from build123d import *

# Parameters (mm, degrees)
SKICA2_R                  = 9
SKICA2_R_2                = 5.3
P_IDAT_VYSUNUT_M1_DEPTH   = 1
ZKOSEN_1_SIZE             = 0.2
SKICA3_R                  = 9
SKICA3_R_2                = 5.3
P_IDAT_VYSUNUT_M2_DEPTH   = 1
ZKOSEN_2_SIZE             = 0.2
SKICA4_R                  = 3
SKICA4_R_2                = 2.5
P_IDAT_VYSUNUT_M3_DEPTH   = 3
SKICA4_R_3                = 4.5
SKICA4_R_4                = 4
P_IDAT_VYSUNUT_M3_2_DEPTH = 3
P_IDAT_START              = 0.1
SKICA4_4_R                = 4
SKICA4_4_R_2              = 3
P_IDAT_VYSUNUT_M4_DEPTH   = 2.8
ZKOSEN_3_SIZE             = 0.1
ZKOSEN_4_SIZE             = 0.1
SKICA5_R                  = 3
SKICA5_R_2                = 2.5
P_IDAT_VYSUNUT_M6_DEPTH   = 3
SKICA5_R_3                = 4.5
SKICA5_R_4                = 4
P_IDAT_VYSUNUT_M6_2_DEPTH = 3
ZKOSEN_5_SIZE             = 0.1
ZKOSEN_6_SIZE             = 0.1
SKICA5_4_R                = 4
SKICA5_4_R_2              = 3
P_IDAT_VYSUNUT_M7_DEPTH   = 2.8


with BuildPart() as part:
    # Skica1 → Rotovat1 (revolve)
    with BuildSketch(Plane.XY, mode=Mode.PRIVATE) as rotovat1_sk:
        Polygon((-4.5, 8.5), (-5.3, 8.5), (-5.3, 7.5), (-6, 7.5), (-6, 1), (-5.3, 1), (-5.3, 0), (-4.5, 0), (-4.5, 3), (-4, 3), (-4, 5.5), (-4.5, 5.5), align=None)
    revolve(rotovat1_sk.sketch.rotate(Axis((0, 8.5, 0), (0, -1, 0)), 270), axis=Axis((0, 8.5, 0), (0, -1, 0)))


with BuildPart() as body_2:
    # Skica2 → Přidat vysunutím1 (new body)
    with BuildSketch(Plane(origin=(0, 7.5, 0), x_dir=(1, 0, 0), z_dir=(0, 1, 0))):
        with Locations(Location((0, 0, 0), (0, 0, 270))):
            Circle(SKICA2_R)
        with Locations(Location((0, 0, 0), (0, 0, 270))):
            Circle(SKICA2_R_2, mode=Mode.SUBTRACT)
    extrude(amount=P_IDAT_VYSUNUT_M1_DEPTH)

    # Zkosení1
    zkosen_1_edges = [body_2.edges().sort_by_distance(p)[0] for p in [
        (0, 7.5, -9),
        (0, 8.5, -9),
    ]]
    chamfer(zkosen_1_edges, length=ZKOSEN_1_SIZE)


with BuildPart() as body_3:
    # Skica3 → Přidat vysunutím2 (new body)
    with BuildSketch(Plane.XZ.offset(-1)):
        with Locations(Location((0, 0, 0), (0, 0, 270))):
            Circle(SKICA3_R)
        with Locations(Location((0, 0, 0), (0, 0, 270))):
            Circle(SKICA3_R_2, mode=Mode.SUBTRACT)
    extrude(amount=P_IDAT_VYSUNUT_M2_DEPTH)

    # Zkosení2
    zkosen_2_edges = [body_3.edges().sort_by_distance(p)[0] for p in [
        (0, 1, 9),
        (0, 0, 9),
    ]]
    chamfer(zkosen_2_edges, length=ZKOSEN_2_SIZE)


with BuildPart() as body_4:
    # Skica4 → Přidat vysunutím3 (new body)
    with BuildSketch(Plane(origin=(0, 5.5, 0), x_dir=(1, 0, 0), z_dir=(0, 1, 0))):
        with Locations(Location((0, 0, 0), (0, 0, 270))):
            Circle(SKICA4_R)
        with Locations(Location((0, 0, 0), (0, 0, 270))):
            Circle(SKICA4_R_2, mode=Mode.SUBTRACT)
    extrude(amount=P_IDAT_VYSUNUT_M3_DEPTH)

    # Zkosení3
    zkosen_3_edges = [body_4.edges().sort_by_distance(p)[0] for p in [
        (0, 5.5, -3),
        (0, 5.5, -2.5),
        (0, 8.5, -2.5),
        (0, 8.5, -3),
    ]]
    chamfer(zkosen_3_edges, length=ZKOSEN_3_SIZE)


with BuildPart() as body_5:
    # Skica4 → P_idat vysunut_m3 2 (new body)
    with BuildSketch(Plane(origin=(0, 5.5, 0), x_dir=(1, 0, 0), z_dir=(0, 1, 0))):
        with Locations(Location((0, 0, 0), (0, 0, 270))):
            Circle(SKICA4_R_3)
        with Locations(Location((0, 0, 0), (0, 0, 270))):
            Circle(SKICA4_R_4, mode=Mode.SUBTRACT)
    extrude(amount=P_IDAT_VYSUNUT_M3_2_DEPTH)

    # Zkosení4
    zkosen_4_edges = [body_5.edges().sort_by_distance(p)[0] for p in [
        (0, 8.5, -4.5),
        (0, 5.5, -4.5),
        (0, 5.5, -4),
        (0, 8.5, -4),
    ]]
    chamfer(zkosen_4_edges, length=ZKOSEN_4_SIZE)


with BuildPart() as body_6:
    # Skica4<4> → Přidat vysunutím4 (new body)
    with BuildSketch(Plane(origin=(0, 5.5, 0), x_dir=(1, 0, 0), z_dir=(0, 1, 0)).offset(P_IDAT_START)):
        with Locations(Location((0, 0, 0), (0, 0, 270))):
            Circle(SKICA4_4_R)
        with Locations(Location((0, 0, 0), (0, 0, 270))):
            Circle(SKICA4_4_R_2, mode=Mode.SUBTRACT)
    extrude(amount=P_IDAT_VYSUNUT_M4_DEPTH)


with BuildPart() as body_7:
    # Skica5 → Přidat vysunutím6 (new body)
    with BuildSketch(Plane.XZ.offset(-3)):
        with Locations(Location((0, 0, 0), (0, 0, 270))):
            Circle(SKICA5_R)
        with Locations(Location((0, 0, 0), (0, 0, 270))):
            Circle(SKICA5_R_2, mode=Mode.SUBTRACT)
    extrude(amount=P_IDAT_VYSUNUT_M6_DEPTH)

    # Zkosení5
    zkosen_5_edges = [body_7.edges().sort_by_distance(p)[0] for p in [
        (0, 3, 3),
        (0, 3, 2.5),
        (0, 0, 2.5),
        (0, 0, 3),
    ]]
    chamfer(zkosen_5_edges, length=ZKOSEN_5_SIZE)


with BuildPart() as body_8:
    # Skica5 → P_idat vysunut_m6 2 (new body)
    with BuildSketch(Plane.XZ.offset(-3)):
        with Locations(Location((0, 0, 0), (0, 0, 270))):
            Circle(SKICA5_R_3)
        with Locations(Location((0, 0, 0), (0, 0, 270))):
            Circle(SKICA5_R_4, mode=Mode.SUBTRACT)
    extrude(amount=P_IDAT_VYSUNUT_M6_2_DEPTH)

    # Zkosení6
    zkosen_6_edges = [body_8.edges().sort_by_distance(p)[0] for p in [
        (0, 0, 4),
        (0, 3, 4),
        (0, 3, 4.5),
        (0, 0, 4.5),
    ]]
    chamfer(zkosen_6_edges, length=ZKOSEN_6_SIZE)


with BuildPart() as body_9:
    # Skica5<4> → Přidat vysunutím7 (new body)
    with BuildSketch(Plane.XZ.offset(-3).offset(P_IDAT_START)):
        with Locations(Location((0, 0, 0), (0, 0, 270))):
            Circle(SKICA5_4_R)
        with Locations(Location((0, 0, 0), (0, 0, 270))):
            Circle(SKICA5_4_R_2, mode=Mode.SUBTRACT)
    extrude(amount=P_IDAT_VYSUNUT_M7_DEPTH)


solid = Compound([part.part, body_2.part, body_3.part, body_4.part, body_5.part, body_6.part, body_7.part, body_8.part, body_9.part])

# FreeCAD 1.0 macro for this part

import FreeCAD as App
import Part
import Sketcher
Q = App.Units.Quantity


def edges_at(feature, points):
    """Names of the edges that pass closest to the given points."""
    edges = feature.Shape.Edges
    near = lambda p: min(range(len(edges)), key=lambda i: edges[i].distToShape(Part.Vertex(*p))[0])
    return sorted({f"Edge{near(p) + 1}" for p in points})

doc = App.newDocument("Part")
body = doc.addObject("PartDesign::Body", "Body")

sketch1 = doc.addObject("Sketcher::SketchObject", "Sketch")
body.addObject(sketch1)
sketch1.AttachmentSupport = (doc.XY_Plane, [""])
sketch1.MapMode = "FlatFace"
sketch1.addGeometry([
    Part.LineSegment(App.Vector(-4.5, 8.5, 0), App.Vector(-5.3, 8.5, 0)),
    Part.LineSegment(App.Vector(-5.3, 8.5, 0), App.Vector(-5.3, 7.5, 0)),
    Part.LineSegment(App.Vector(-5.3, 7.5, 0), App.Vector(-6, 7.5, 0)),
    Part.LineSegment(App.Vector(-6, 7.5, 0), App.Vector(-6, 1, 0)),
    Part.LineSegment(App.Vector(-6, 1, 0), App.Vector(-5.3, 1, 0)),
    Part.LineSegment(App.Vector(-5.3, 1, 0), App.Vector(-5.3, 0, 0)),
    Part.LineSegment(App.Vector(-5.3, 0, 0), App.Vector(-4.5, 0, 0)),
    Part.LineSegment(App.Vector(-4.5, 0, 0), App.Vector(-4.5, 3, 0)),
    Part.LineSegment(App.Vector(-4.5, 3, 0), App.Vector(-4, 3, 0)),
    Part.LineSegment(App.Vector(-4, 3, 0), App.Vector(-4, 5.5, 0)),
    Part.LineSegment(App.Vector(-4, 5.5, 0), App.Vector(-4.5, 5.5, 0)),
    Part.LineSegment(App.Vector(-4.5, 5.5, 0), App.Vector(-4.5, 8.5, 0)),
], False)
sketch1.addConstraint([
    Sketcher.Constraint("Coincident", 0, 2, 1, 1),
    Sketcher.Constraint("Coincident", 1, 2, 2, 1),
    Sketcher.Constraint("Coincident", 2, 2, 3, 1),
    Sketcher.Constraint("Coincident", 3, 2, 4, 1),
    Sketcher.Constraint("Coincident", 4, 2, 5, 1),
    Sketcher.Constraint("Coincident", 5, 2, 6, 1),
    Sketcher.Constraint("Coincident", 6, 2, 7, 1),
    Sketcher.Constraint("Coincident", 7, 2, 8, 1),
    Sketcher.Constraint("Coincident", 8, 2, 9, 1),
    Sketcher.Constraint("Coincident", 9, 2, 10, 1),
    Sketcher.Constraint("Coincident", 10, 2, 11, 1),
    Sketcher.Constraint("Coincident", 11, 2, 0, 1),
    Sketcher.Constraint("Horizontal", 0),
    Sketcher.Constraint("Vertical", 1),
    Sketcher.Constraint("Horizontal", 2),
    Sketcher.Constraint("Vertical", 3),
    Sketcher.Constraint("Horizontal", 4),
    Sketcher.Constraint("Vertical", 5),
    Sketcher.Constraint("Horizontal", 6),
    Sketcher.Constraint("Vertical", 7),
    Sketcher.Constraint("Horizontal", 8),
    Sketcher.Constraint("Vertical", 9),
    Sketcher.Constraint("Horizontal", 10),
    Sketcher.Constraint("Vertical", 11),
    Sketcher.Constraint("PointOnObject", 5, 2, -1),
    Sketcher.Constraint("Vertical", 1, 2, 4, 2),
    Sketcher.Constraint("Vertical", 7, 2, 10, 2),
    Sketcher.Constraint("Equal", 1, 5),
    Sketcher.Constraint("Equal", 7, 11),
    Sketcher.Constraint("DistanceY", 1, 2, 1, 1, Q("1 mm")),
    Sketcher.Constraint("DistanceY", 7, 1, 7, 2, Q("3 mm")),
    Sketcher.Constraint("DistanceX", 0, 2, 0, 1, Q("0.8 mm")),
    Sketcher.Constraint("DistanceX", 2, 2, 2, 1, Q("0.7 mm")),
    Sketcher.Constraint("DistanceX", 8, 1, 8, 2, Q("0.5 mm")),
    Sketcher.Constraint("DistanceY", 3, 2, 3, 1, Q("6.5 mm")),
    Sketcher.Constraint("DistanceX", 2, 2, -1, 1, Q("6 mm")),
])
revolution = doc.addObject("PartDesign::Revolution", "Revolution")
body.addObject(revolution)
revolution.Profile = sketch1
revolution.ReferenceAxis = (sketch1, ["V_Axis"])
revolution.Angle = 360
body2 = doc.addObject("PartDesign::Body", "Body001")

sketch2 = doc.addObject("Sketcher::SketchObject", "Sketch001")
body2.addObject(sketch2)
sketch2.AttachmentSupport = (doc.getObject("XZ_Plane001"), [""])
sketch2.MapMode = "FlatFace"
sketch2.AttachmentOffset = App.Placement(App.Vector(0, 0, -7.5), App.Rotation())
sketch2.addGeometry([
    Part.Circle(App.Vector(0, 0, 0), App.Vector(0, 0, 1), 9),
    Part.Circle(App.Vector(0, 0, 0), App.Vector(0, 0, 1), 5),
], False)
sketch2.addConstraint([
    Sketcher.Constraint("Coincident", 0, 3, -1, 1),
    Sketcher.Constraint("Coincident", 1, 3, -1, 1),
    Sketcher.Constraint("Diameter", 0, Q("18 mm")),
    Sketcher.Constraint("Diameter", 1, Q("10.6 mm")),
])
pad1 = doc.addObject("PartDesign::Pad", "Pad")
body2.addObject(pad1)
pad1.Profile = sketch2
pad1.Length = 1
pad1.Reversed = True
doc.recompute()

chamfer = doc.addObject("PartDesign::Chamfer", "Chamfer")
body2.addObject(chamfer)
chamfer.Base = (pad1, edges_at(pad1, [(0, 7.5, -9), (0, 8.5, -9)]))
chamfer.Size = 0.2
body3 = doc.addObject("PartDesign::Body", "Body002")

sketch3 = doc.addObject("Sketcher::SketchObject", "Sketch002")
body3.addObject(sketch3)
sketch3.AttachmentSupport = (doc.getObject("XZ_Plane002"), [""])
sketch3.MapMode = "FlatFace"
sketch3.AttachmentOffset = App.Placement(App.Vector(0, 0, -1), App.Rotation())
sketch3.addGeometry([
    Part.Circle(App.Vector(0, 0, 0), App.Vector(0, 0, 1), 9),
    Part.Circle(App.Vector(0, 0, 0), App.Vector(0, 0, 1), 5),
], False)
sketch3.addConstraint([
    Sketcher.Constraint("Coincident", 0, 3, -1, 1),
    Sketcher.Constraint("Coincident", 1, 3, -1, 1),
    Sketcher.Constraint("Diameter", 0, Q("18 mm")),
    Sketcher.Constraint("Diameter", 1, Q("10.6 mm")),
])
pad2 = doc.addObject("PartDesign::Pad", "Pad001")
body3.addObject(pad2)
pad2.Profile = sketch3
pad2.Length = 1
doc.recompute()

chamfer2 = doc.addObject("PartDesign::Chamfer", "Chamfer001")
body3.addObject(chamfer2)
chamfer2.Base = (pad2, edges_at(pad2, [(0, 1, 9), (0, 0, 9)]))
chamfer2.Size = 0.2
body4 = doc.addObject("PartDesign::Body", "Body003")

sketch4 = doc.addObject("Sketcher::SketchObject", "Sketch003")
body4.addObject(sketch4)
sketch4.AttachmentSupport = (doc.getObject("XZ_Plane003"), [""])
sketch4.MapMode = "FlatFace"
sketch4.AttachmentOffset = App.Placement(App.Vector(0, 0, -5.5), App.Rotation())
sketch4.addGeometry([
    Part.Circle(App.Vector(0, 0, 0), App.Vector(0, 0, 1), 3),
    Part.Circle(App.Vector(0, 0, 0), App.Vector(0, 0, 1), 2.5),
], False)
sketch4.addConstraint([
    Sketcher.Constraint("Coincident", 0, 3, -1, 1),
    Sketcher.Constraint("Coincident", 1, 3, -1, 1),
    Sketcher.Constraint("Diameter", 0, Q("6 mm")),
    Sketcher.Constraint("Diameter", 1, Q("5 mm")),
])
pad3 = doc.addObject("PartDesign::Pad", "Pad002")
body4.addObject(pad3)
pad3.Profile = sketch4
pad3.Length = 3
pad3.Reversed = True
doc.recompute()

chamfer3 = doc.addObject("PartDesign::Chamfer", "Chamfer002")
body4.addObject(chamfer3)
chamfer3.Base = (pad3, edges_at(pad3, [
    (0, 5.5, -3),
    (0, 5.5, -2.5),
    (0, 8.5, -2.5),
    (0, 8.5, -3),
]))
chamfer3.Size = 0.1
body5 = doc.addObject("PartDesign::Body", "Body004")

sketch5 = doc.addObject("Sketcher::SketchObject", "Sketch004")
body5.addObject(sketch5)
sketch5.AttachmentSupport = (doc.getObject("XZ_Plane004"), [""])
sketch5.MapMode = "FlatFace"
sketch5.AttachmentOffset = App.Placement(App.Vector(0, 0, -5.5), App.Rotation())
sketch5.addGeometry([
    Part.Circle(App.Vector(0, 0, 0), App.Vector(0, 0, 1), 4.5),
    Part.Circle(App.Vector(0, 0, 0), App.Vector(0, 0, 1), 4),
], False)
sketch5.addConstraint([
    Sketcher.Constraint("Coincident", 0, 3, -1, 1),
    Sketcher.Constraint("Coincident", 1, 3, -1, 1),
    Sketcher.Constraint("Diameter", 0, Q("9 mm")),
    Sketcher.Constraint("Diameter", 1, Q("8 mm")),
])
pad4 = doc.addObject("PartDesign::Pad", "Pad003")
body5.addObject(pad4)
pad4.Profile = sketch5
pad4.Length = 3
pad4.Reversed = True
doc.recompute()

chamfer4 = doc.addObject("PartDesign::Chamfer", "Chamfer003")
body5.addObject(chamfer4)
chamfer4.Base = (pad4, edges_at(pad4, [
    (0, 8.5, -4.5),
    (0, 5.5, -4.5),
    (0, 5.5, -4),
    (0, 8.5, -4),
]))
chamfer4.Size = 0.1
body6 = doc.addObject("PartDesign::Body", "Body005")

sketch6 = doc.addObject("Sketcher::SketchObject", "Sketch005")
body6.addObject(sketch6)
sketch6.AttachmentSupport = (doc.getObject("XZ_Plane005"), [""])
sketch6.MapMode = "FlatFace"
sketch6.AttachmentOffset = App.Placement(App.Vector(0, 0, -5.6), App.Rotation())
sketch6.addGeometry([
    Part.Circle(App.Vector(0, 0, 0), App.Vector(0, 0, 1), 4),
    Part.Circle(App.Vector(0, 0, 0), App.Vector(0, 0, 1), 3),
], False)
sketch6.addConstraint([
    Sketcher.Constraint("Coincident", 0, 3, -1, 1),
    Sketcher.Constraint("Coincident", 1, 3, -1, 1),
    Sketcher.Constraint("Diameter", 0, Q("8 mm")),
    Sketcher.Constraint("Diameter", 1, Q("6 mm")),
])
pad5 = doc.addObject("PartDesign::Pad", "Pad004")
body6.addObject(pad5)
pad5.Profile = sketch6
pad5.Length = 2.8
pad5.Reversed = True
body7 = doc.addObject("PartDesign::Body", "Body006")

sketch7 = doc.addObject("Sketcher::SketchObject", "Sketch006")
body7.addObject(sketch7)
sketch7.AttachmentSupport = (doc.getObject("XZ_Plane006"), [""])
sketch7.MapMode = "FlatFace"
sketch7.AttachmentOffset = App.Placement(App.Vector(0, 0, -3), App.Rotation())
sketch7.addGeometry([
    Part.Circle(App.Vector(0, 0, 0), App.Vector(0, 0, 1), 3),
    Part.Circle(App.Vector(0, 0, 0), App.Vector(0, 0, 1), 2.5),
], False)
sketch7.addConstraint([
    Sketcher.Constraint("Coincident", 0, 3, -1, 1),
    Sketcher.Constraint("Coincident", 1, 3, -1, 1),
    Sketcher.Constraint("Diameter", 0, Q("6 mm")),
    Sketcher.Constraint("Diameter", 1, Q("5 mm")),
])
pad6 = doc.addObject("PartDesign::Pad", "Pad005")
body7.addObject(pad6)
pad6.Profile = sketch7
pad6.Length = 3
doc.recompute()

chamfer5 = doc.addObject("PartDesign::Chamfer", "Chamfer004")
body7.addObject(chamfer5)
chamfer5.Base = (pad6, edges_at(pad6, [
    (0, 3, 3),
    (0, 3, 2.5),
    (0, 0, 2.5),
    (0, 0, 3),
]))
chamfer5.Size = 0.1
body8 = doc.addObject("PartDesign::Body", "Body007")

sketch8 = doc.addObject("Sketcher::SketchObject", "Sketch007")
body8.addObject(sketch8)
sketch8.AttachmentSupport = (doc.getObject("XZ_Plane007"), [""])
sketch8.MapMode = "FlatFace"
sketch8.AttachmentOffset = App.Placement(App.Vector(0, 0, -3), App.Rotation())
sketch8.addGeometry([
    Part.Circle(App.Vector(0, 0, 0), App.Vector(0, 0, 1), 4.5),
    Part.Circle(App.Vector(0, 0, 0), App.Vector(0, 0, 1), 4),
], False)
sketch8.addConstraint([
    Sketcher.Constraint("Coincident", 0, 3, -1, 1),
    Sketcher.Constraint("Coincident", 1, 3, -1, 1),
    Sketcher.Constraint("Diameter", 0, Q("9 mm")),
    Sketcher.Constraint("Diameter", 1, Q("8 mm")),
])
pad7 = doc.addObject("PartDesign::Pad", "Pad006")
body8.addObject(pad7)
pad7.Profile = sketch8
pad7.Length = 3
doc.recompute()

chamfer6 = doc.addObject("PartDesign::Chamfer", "Chamfer005")
body8.addObject(chamfer6)
chamfer6.Base = (pad7, edges_at(pad7, [
    (0, 0, 4),
    (0, 3, 4),
    (0, 3, 4.5),
    (0, 0, 4.5),
]))
chamfer6.Size = 0.1
body9 = doc.addObject("PartDesign::Body", "Body008")

sketch9 = doc.addObject("Sketcher::SketchObject", "Sketch008")
body9.addObject(sketch9)
sketch9.AttachmentSupport = (doc.getObject("XZ_Plane008"), [""])
sketch9.MapMode = "FlatFace"
sketch9.AttachmentOffset = App.Placement(App.Vector(0, 0, -2.9), App.Rotation())
sketch9.addGeometry([
    Part.Circle(App.Vector(0, 0, 0), App.Vector(0, 0, 1), 4),
    Part.Circle(App.Vector(0, 0, 0), App.Vector(0, 0, 1), 3),
], False)
sketch9.addConstraint([
    Sketcher.Constraint("Coincident", 0, 3, -1, 1),
    Sketcher.Constraint("Coincident", 1, 3, -1, 1),
    Sketcher.Constraint("Diameter", 0, Q("8 mm")),
    Sketcher.Constraint("Diameter", 1, Q("6 mm")),
])
pad8 = doc.addObject("PartDesign::Pad", "Pad007")
body9.addObject(pad8)
pad8.Profile = sketch9
pad8.Length = 2.8

doc.recompute()
